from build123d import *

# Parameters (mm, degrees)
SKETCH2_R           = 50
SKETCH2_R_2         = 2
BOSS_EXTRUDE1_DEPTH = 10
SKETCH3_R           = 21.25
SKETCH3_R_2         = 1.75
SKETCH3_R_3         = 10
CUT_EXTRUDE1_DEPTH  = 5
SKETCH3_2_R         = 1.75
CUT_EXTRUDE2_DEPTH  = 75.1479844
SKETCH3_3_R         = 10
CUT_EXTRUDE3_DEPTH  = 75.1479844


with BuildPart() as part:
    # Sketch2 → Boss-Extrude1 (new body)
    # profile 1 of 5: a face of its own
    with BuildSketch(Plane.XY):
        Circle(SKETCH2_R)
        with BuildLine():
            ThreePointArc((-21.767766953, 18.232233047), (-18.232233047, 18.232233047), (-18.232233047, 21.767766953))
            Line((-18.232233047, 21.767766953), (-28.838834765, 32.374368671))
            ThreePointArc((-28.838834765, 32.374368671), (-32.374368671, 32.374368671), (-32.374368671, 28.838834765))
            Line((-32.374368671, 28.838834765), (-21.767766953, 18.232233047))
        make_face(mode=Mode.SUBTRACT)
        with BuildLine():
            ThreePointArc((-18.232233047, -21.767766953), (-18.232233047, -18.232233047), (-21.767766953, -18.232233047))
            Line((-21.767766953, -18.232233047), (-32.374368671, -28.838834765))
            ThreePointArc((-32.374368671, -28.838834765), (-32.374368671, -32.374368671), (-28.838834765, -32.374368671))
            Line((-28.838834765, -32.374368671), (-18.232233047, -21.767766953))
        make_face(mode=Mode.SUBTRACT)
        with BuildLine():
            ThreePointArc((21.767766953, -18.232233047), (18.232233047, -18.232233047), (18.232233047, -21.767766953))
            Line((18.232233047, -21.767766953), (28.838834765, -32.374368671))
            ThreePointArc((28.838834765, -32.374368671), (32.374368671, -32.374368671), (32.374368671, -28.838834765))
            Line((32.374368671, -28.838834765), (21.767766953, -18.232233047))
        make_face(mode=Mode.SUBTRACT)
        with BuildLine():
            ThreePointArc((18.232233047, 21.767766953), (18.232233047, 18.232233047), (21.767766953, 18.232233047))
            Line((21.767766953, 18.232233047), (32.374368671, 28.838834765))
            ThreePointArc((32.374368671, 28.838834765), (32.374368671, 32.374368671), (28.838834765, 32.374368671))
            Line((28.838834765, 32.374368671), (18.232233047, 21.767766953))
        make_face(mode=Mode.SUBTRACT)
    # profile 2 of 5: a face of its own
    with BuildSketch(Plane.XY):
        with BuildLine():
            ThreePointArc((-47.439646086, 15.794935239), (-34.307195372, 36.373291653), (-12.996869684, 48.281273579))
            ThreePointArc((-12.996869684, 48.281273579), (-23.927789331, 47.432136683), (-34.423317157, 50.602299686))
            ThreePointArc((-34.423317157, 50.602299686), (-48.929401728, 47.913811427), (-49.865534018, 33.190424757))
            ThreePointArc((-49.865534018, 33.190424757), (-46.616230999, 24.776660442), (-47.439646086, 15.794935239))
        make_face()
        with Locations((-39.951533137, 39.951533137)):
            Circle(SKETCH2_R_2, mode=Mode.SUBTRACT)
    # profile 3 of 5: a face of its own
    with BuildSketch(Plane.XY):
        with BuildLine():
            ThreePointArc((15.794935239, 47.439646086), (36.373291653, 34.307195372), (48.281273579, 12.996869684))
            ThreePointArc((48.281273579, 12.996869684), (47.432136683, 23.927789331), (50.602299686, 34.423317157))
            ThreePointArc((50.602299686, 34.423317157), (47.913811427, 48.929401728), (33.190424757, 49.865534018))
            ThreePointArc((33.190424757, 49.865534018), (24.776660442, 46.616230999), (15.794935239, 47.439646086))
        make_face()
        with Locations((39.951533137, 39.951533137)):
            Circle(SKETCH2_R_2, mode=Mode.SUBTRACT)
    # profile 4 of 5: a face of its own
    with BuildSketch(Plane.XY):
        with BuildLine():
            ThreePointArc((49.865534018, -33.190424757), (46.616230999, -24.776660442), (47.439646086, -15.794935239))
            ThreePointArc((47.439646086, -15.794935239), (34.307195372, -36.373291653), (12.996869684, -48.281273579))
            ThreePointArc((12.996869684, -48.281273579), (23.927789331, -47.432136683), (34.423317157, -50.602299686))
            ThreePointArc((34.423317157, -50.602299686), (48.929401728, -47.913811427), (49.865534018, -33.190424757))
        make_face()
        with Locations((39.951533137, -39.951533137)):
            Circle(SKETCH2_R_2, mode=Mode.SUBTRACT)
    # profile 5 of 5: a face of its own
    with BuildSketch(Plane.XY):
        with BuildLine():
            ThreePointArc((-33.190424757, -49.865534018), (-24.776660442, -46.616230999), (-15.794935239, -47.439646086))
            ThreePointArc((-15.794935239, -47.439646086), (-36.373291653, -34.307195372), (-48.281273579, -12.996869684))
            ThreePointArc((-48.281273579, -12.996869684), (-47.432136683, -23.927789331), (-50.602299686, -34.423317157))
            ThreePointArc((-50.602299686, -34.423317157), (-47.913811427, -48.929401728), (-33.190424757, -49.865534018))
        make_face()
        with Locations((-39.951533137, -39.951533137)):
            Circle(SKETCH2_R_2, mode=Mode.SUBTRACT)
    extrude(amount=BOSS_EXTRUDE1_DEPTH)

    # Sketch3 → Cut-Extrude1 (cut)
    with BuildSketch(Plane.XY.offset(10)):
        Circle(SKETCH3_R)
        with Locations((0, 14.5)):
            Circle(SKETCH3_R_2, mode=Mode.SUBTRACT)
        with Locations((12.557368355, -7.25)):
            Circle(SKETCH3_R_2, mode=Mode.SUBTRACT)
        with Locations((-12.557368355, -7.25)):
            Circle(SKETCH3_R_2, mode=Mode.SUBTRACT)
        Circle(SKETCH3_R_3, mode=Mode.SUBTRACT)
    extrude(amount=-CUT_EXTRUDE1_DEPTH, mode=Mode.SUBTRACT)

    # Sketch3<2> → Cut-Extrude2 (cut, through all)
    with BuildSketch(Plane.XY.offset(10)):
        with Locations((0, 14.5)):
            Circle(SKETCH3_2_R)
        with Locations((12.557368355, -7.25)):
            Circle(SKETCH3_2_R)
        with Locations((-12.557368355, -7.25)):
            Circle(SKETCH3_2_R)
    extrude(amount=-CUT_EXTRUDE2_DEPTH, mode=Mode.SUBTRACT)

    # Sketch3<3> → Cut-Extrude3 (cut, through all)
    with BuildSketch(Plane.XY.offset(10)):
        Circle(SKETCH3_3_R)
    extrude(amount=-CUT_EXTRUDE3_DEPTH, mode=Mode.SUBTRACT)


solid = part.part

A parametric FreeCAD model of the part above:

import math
import FreeCAD as App
import Part
import Sketcher
Q = App.Units.Quantity

doc = App.newDocument("Part")
body = doc.addObject("PartDesign::Body", "Body")

# Sketch on XY plane
sketch1 = doc.addObject("Sketcher::SketchObject", "Sketch")
body.addObject(sketch1)
sketch1.AttachmentSupport = (doc.XY_Plane, [""])
sketch1.MapMode = "FlatFace"
sketch1.addGeometry([
    Part.ArcOfCircle(Part.Circle(App.Vector(77, 20.7, 0), App.Vector(0, 0, 1), 29.7), math.radians(153), math.radians(195)),  # 0
    Part.ArcOfCircle(Part.Circle(App.Vector(40, 40, 0), App.Vector(0, 0, 1), 12), math.radians(-27), math.radians(124)),  # 1
    Part.ArcOfCircle(Part.Circle(App.Vector(22, 66.2, 0), App.Vector(0, 0, 1), 19.8), math.radians(-108), math.radians(-56)),  # 2
    Part.ArcOfCircle(Part.Circle(App.Vector(0, 0, 0), App.Vector(0, 0, 1), 50), math.radians(72), math.radians(105)),  # 3
    Part.ArcOfCircle(Part.Circle(App.Vector(-20.7, 77, 0), App.Vector(0, 0, 1), 29.7), math.radians(-117), math.radians(-75)),  # 4
    Part.ArcOfCircle(Part.Circle(App.Vector(-40, 40, 0), App.Vector(0, 0, 1), 12), math.radians(63), math.radians(214)),  # 5
    Part.ArcOfCircle(Part.Circle(App.Vector(-66.2, 22, 0), App.Vector(0, 0, 1), 19.8), math.radians(-18), math.radians(34)),  # 6
    Part.ArcOfCircle(Part.Circle(App.Vector(0, 0, 0), App.Vector(0, 0, 1), 50), math.radians(162), math.radians(195)),  # 7
    Part.ArcOfCircle(Part.Circle(App.Vector(-77, -20.7, 0), App.Vector(0, 0, 1), 29.7), math.radians(-27), math.radians(15)),  # 8
    Part.ArcOfCircle(Part.Circle(App.Vector(-40, -40, 0), App.Vector(0, 0, 1), 12), math.radians(153), math.radians(304)),  # 9
    Part.ArcOfCircle(Part.Circle(App.Vector(-22, -66.2, 0), App.Vector(0, 0, 1), 19.8), math.radians(72), math.radians(124)),  # 10
    Part.ArcOfCircle(Part.Circle(App.Vector(0, 0, 0), App.Vector(0, 0, 1), 50), math.radians(-108), math.radians(-75)),  # 11
    Part.ArcOfCircle(Part.Circle(App.Vector(20.7, -77, 0), App.Vector(0, 0, 1), 29.7), math.radians(63), math.radians(105)),  # 12
    Part.ArcOfCircle(Part.Circle(App.Vector(40, -40, 0), App.Vector(0, 0, 1), 12), math.radians(-117), math.radians(34)),  # 13
    Part.ArcOfCircle(Part.Circle(App.Vector(66.2, -22, 0), App.Vector(0, 0, 1), 19.8), math.radians(162), math.radians(214)),  # 14
    Part.ArcOfCircle(Part.Circle(App.Vector(0, 0, 0), App.Vector(0, 0, 1), 50), math.radians(-18), math.radians(15)),  # 15
    Part.ArcOfCircle(Part.Circle(App.Vector(-20, -20, 0), App.Vector(0, 0, 1), 2.5), math.radians(-45), math.radians(135)),  # 16
    Part.LineSegment(App.Vector(-18.2, -21.8, 0), App.Vector(-28.8, -32.4, 0)),  # 17
    Part.ArcOfCircle(Part.Circle(App.Vector(-30.6, -30.6, 0), App.Vector(0, 0, 1), 2.5), math.radians(135), math.radians(315)),  # 18
    Part.LineSegment(App.Vector(-32.4, -28.8, 0), App.Vector(-21.8, -18.2, 0)),  # 19
    Part.ArcOfCircle(Part.Circle(App.Vector(20, -20, 0), App.Vector(0, 0, 1), 2.5), math.radians(45), math.radians(225)),  # 20
    Part.LineSegment(App.Vector(21.8, -18.2, 0), App.Vector(32.4, -28.8, 0)),  # 21
    Part.ArcOfCircle(Part.Circle(App.Vector(30.6, -30.6, 0), App.Vector(0, 0, 1), 2.5), math.radians(-135), math.radians(45)),  # 22
    Part.LineSegment(App.Vector(28.8, -32.4, 0), App.Vector(18.2, -21.8, 0)),  # 23
    Part.ArcOfCircle(Part.Circle(App.Vector(-20, 20, 0), App.Vector(0, 0, 1), 2.5), math.radians(-135), math.radians(45)),  # 24
    Part.LineSegment(App.Vector(-21.8, 18.2, 0), App.Vector(-32.4, 28.8, 0)),  # 25
    Part.ArcOfCircle(Part.Circle(App.Vector(-30.6, 30.6, 0), App.Vector(0, 0, 1), 2.5), math.radians(45), math.radians(225)),  # 26
    Part.LineSegment(App.Vector(-28.8, 32.4, 0), App.Vector(-18.2, 21.8, 0)),  # 27
    Part.ArcOfCircle(Part.Circle(App.Vector(20, 20, 0), App.Vector(0, 0, 1), 2.5), math.radians(135), math.radians(315)),  # 28
    Part.LineSegment(App.Vector(18.2, 21.8, 0), App.Vector(28.8, 32.4, 0)),  # 29
    Part.ArcOfCircle(Part.Circle(App.Vector(30.6, 30.6, 0), App.Vector(0, 0, 1), 2.5), math.radians(-45), math.radians(135)),  # 30
    Part.LineSegment(App.Vector(32.4, 28.8, 0), App.Vector(21.8, 18.2, 0)),  # 31
    Part.Circle(App.Vector(40, 40, 0), App.Vector(0, 0, 1), 2),  # 32
    Part.Circle(App.Vector(-40, 40, 0), App.Vector(0, 0, 1), 2),  # 33
    Part.Circle(App.Vector(-40, -40, 0), App.Vector(0, 0, 1), 2),  # 34
    Part.Circle(App.Vector(40, -40, 0), App.Vector(0, 0, 1), 2),  # 35
], False)
sketch1.addConstraint([
    Sketcher.Constraint("Tangent", 0, 1, 1, 1),
    Sketcher.Constraint("Tangent", 1, 2, 2, 2),
    Sketcher.Constraint("Tangent", 2, 1, 3, 1),
    Sketcher.Constraint("Tangent", 3, 2, 4, 2),
    Sketcher.Constraint("Tangent", 4, 1, 5, 1),
    Sketcher.Constraint("Tangent", 5, 2, 6, 2),
    Sketcher.Constraint("Tangent", 6, 1, 7, 1),
    Sketcher.Constraint("Tangent", 7, 2, 8, 2),
    Sketcher.Constraint("Tangent", 8, 1, 9, 1),
    Sketcher.Constraint("Tangent", 9, 2, 10, 2),
    Sketcher.Constraint("Tangent", 10, 1, 11, 1),
    Sketcher.Constraint("Tangent", 11, 2, 12, 2),
    Sketcher.Constraint("Tangent", 12, 1, 13, 1),
    Sketcher.Constraint("Tangent", 13, 2, 14, 2),
    Sketcher.Constraint("Tangent", 14, 1, 15, 1),
    Sketcher.Constraint("Tangent", 15, 2, 0, 2),
    Sketcher.Constraint("Tangent", 16, 1, 17, 1),
    Sketcher.Constraint("Tangent", 17, 2, 18, 2),
    Sketcher.Constraint("Tangent", 18, 1, 19, 1),
    Sketcher.Constraint("Tangent", 19, 2, 16, 2),
    Sketcher.Constraint("Tangent", 20, 1, 21, 1),
    Sketcher.Constraint("Tangent", 21, 2, 22, 2),
    Sketcher.Constraint("Tangent", 22, 1, 23, 1),
    Sketcher.Constraint("Tangent", 23, 2, 20, 2),
    Sketcher.Constraint("Tangent", 24, 1, 25, 1),
    Sketcher.Constraint("Tangent", 25, 2, 26, 2),
    Sketcher.Constraint("Tangent", 26, 1, 27, 1),
    Sketcher.Constraint("Tangent", 27, 2, 24, 2),
    Sketcher.Constraint("Tangent", 28, 1, 29, 1),
    Sketcher.Constraint("Tangent", 29, 2, 30, 2),
    Sketcher.Constraint("Tangent", 30, 1, 31, 1),
    Sketcher.Constraint("Tangent", 31, 2, 28, 2),
    Sketcher.Constraint("Coincident", 3, 3, -1, 1),
    Sketcher.Constraint("Coincident", 7, 3, -1, 1),
    Sketcher.Constraint("Coincident", 11, 3, -1, 1),
    Sketcher.Constraint("Coincident", 15, 3, -1, 1),
    Sketcher.Constraint("Coincident", 32, 3, 1, 3),
    Sketcher.Constraint("Coincident", 33, 3, 5, 3),
    Sketcher.Constraint("Coincident", 34, 3, 9, 3),
    Sketcher.Constraint("Coincident", 35, 3, 13, 3),
    Sketcher.Constraint("Equal", 0, 4),
    Sketcher.Constraint("Equal", 1, 5),
    Sketcher.Constraint("Equal", 2, 6),
    Sketcher.Constraint("Equal", 3, 7),
    Sketcher.Constraint("Equal", 4, 8),
    Sketcher.Constraint("Equal", 5, 9),
    Sketcher.Constraint("Equal", 6, 10),
    Sketcher.Constraint("Equal", 7, 11),
    Sketcher.Constraint("Equal", 8, 12),
    Sketcher.Constraint("Equal", 9, 13),
    Sketcher.Constraint("Equal", 10, 14),
    Sketcher.Constraint("Equal", 11, 15),
    Sketcher.Constraint("Equal", 16, 18),
    Sketcher.Constraint("Equal", 18, 20),
    Sketcher.Constraint("Equal", 20, 22),
    Sketcher.Constraint("Equal", 22, 24),
    Sketcher.Constraint("Equal", 24, 26),
    Sketcher.Constraint("Equal", 26, 28),
    Sketcher.Constraint("Equal", 28, 30),
    Sketcher.Constraint("Equal", 32, 33),
    Sketcher.Constraint("Equal", 33, 34),
    Sketcher.Constraint("Equal", 34, 35),
    Sketcher.Constraint("Symmetric", 1, 3, 9, 3, -1, 1),
    Sketcher.Constraint("Symmetric", 5, 3, 13, 3, -1, 1),
    Sketcher.Constraint("Symmetric", 20, 3, 24, 3, -1, 1),
    Sketcher.Constraint("Symmetric", 22, 3, 26, 3, -1, 1),
    Sketcher.Constraint("Symmetric", 16, 3, 28, 3, -1, 1),
    Sketcher.Constraint("Symmetric", 18, 3, 30, 3, -1, 1),
    Sketcher.Constraint("Symmetric", 1, 3, 5, 3, -2),
    Sketcher.Constraint("Symmetric", 16, 3, 20, 3, -2),
    Sketcher.Constraint("Symmetric", 18, 3, 22, 3, -2),
    Sketcher.Constraint("Perpendicular", 19, 21),
    Sketcher.Constraint("Diameter", 32, Q("4 mm")),
    Sketcher.Constraint("Radius", 1, Q("12 mm")),
    Sketcher.Constraint("Radius", 3, Q("50 mm")),
    Sketcher.Constraint("Radius", 16, Q("2.5 mm")),
    Sketcher.Constraint("Distance", 17, Q("15 mm")),
    Sketcher.Constraint("DistanceX", 16, 3, -1, 1, Q("20 mm")),
    Sketcher.Constraint("DistanceY", 16, 3, -1, 1, Q("20 mm")),
    Sketcher.Constraint("Radius", 2, Q("19.782789 mm")),
    Sketcher.Constraint("Radius", 0, Q("29.733266 mm")),
    Sketcher.Constraint("DistanceY", 1, 3, 1, 2, Q("9.914001 mm")),
    Sketcher.Constraint("DistanceX", 5, 2, 5, 3, Q("9.914001 mm")),
])
pad1 = doc.addObject("PartDesign::Pad", "Pad")
body.addObject(pad1)
pad1.Profile = sketch1
pad1.Length = 10

# Sketch on XY plane
sketch2 = doc.addObject("Sketcher::SketchObject", "Sketch001")
body.addObject(sketch2)
sketch2.AttachmentSupport = (doc.XY_Plane, [""])
sketch2.MapMode = "FlatFace"
sketch2.AttachmentOffset = App.Placement(App.Vector(0, 0, 10), App.Rotation())
sketch2.addGeometry([
    Part.Circle(App.Vector(0, 0, 0), App.Vector(0, 0, 1), 21.2),  # 0
    Part.Circle(App.Vector(-12.6, -7.2, 0), App.Vector(0, 0, 1), 1.8),  # 1
    Part.Circle(App.Vector(12.6, -7.2, 0), App.Vector(0, 0, 1), 1.8),  # 2
    Part.Circle(App.Vector(0, 0, 0), App.Vector(0, 0, 1), 10),  # 3
    Part.Circle(App.Vector(0, 14.5, 0), App.Vector(0, 0, 1), 1.8),  # 4
], False)
sketch2.addConstraint([
    Sketcher.Constraint("Coincident", 0, 3, -1, 1),
    Sketcher.Constraint("Coincident", 3, 3, -1, 1),
    Sketcher.Constraint("Equal", 1, 2),
    Sketcher.Constraint("Equal", 2, 4),
    Sketcher.Constraint("Symmetric", 1, 3, 2, 3, -2),
    Sketcher.Constraint("PointOnObject", 4, 3, -2),
    Sketcher.Constraint("Diameter", 3, Q("20 mm")),
    Sketcher.Constraint("Diameter", 0, Q("42.5 mm")),
    Sketcher.Constraint("Diameter", 1, Q("3.5 mm")),
    Sketcher.Constraint("DistanceY", -1, 1, 4, 3, Q("14.5 mm")),
    Sketcher.Constraint("DistanceY", 1, 3, -1, 1, Q("7.25 mm")),
    Sketcher.Constraint("DistanceX", 1, 3, -1, 1, Q("12.557368 mm")),
])
pocket1 = doc.addObject("PartDesign::Pocket", "Pocket")
body.addObject(pocket1)
pocket1.Profile = sketch2
pocket1.Length = 5

# Sketch on XY plane
sketch3 = doc.addObject("Sketcher::SketchObject", "Sketch002")
body.addObject(sketch3)
sketch3.AttachmentSupport = (doc.XY_Plane, [""])
sketch3.MapMode = "FlatFace"
sketch3.AttachmentOffset = App.Placement(App.Vector(0, 0, 10), App.Rotation())
sketch3.addGeometry([
    Part.Circle(App.Vector(0, 14.5, 0), App.Vector(0, 0, 1), 1.8),
    Part.Circle(App.Vector(12.6, -7.2, 0), App.Vector(0, 0, 1), 1.8),
    Part.Circle(App.Vector(-12.6, -7.2, 0), App.Vector(0, 0, 1), 1.8),
], False)
sketch3.addConstraint([
    Sketcher.Constraint("Equal", 0, 1),
    Sketcher.Constraint("Equal", 1, 2),
    Sketcher.Constraint("Symmetric", 1, 3, 2, 3, -2),
    Sketcher.Constraint("PointOnObject", 0, 3, -2),
    Sketcher.Constraint("Diameter", 0, Q("3.5 mm")),
    Sketcher.Constraint("DistanceY", -1, 1, 0, 3, Q("14.5 mm")),
    Sketcher.Constraint("DistanceY", 1, 3, -1, 1, Q("7.25 mm")),
    Sketcher.Constraint("DistanceX", -1, 1, 1, 3, Q("12.557368 mm")),
])
pocket2 = doc.addObject("PartDesign::Pocket", "Pocket001")
body.addObject(pocket2)
pocket2.Profile = sketch3
pocket2.Type = "ThroughAll"

# Sketch on XY plane
sketch4 = doc.addObject("Sketcher::SketchObject", "Sketch003")
body.addObject(sketch4)
sketch4.AttachmentSupport = (doc.XY_Plane, [""])
sketch4.MapMode = "FlatFace"
sketch4.AttachmentOffset = App.Placement(App.Vector(0, 0, 10), App.Rotation())
sketch4.addGeometry(Part.Circle(App.Vector(0, 0, 0), App.Vector(0, 0, 1), 10), False)
sketch4.addConstraint([
    Sketcher.Constraint("Coincident", 0, 3, -1, 1),
    Sketcher.Constraint("Diameter", 0, Q("20 mm")),
])
pocket3 = doc.addObject("PartDesign::Pocket", "Pocket002")
body.addObject(pocket3)
pocket3.Profile = sketch4
pocket3.Type = "ThroughAll"

doc.recompute()
